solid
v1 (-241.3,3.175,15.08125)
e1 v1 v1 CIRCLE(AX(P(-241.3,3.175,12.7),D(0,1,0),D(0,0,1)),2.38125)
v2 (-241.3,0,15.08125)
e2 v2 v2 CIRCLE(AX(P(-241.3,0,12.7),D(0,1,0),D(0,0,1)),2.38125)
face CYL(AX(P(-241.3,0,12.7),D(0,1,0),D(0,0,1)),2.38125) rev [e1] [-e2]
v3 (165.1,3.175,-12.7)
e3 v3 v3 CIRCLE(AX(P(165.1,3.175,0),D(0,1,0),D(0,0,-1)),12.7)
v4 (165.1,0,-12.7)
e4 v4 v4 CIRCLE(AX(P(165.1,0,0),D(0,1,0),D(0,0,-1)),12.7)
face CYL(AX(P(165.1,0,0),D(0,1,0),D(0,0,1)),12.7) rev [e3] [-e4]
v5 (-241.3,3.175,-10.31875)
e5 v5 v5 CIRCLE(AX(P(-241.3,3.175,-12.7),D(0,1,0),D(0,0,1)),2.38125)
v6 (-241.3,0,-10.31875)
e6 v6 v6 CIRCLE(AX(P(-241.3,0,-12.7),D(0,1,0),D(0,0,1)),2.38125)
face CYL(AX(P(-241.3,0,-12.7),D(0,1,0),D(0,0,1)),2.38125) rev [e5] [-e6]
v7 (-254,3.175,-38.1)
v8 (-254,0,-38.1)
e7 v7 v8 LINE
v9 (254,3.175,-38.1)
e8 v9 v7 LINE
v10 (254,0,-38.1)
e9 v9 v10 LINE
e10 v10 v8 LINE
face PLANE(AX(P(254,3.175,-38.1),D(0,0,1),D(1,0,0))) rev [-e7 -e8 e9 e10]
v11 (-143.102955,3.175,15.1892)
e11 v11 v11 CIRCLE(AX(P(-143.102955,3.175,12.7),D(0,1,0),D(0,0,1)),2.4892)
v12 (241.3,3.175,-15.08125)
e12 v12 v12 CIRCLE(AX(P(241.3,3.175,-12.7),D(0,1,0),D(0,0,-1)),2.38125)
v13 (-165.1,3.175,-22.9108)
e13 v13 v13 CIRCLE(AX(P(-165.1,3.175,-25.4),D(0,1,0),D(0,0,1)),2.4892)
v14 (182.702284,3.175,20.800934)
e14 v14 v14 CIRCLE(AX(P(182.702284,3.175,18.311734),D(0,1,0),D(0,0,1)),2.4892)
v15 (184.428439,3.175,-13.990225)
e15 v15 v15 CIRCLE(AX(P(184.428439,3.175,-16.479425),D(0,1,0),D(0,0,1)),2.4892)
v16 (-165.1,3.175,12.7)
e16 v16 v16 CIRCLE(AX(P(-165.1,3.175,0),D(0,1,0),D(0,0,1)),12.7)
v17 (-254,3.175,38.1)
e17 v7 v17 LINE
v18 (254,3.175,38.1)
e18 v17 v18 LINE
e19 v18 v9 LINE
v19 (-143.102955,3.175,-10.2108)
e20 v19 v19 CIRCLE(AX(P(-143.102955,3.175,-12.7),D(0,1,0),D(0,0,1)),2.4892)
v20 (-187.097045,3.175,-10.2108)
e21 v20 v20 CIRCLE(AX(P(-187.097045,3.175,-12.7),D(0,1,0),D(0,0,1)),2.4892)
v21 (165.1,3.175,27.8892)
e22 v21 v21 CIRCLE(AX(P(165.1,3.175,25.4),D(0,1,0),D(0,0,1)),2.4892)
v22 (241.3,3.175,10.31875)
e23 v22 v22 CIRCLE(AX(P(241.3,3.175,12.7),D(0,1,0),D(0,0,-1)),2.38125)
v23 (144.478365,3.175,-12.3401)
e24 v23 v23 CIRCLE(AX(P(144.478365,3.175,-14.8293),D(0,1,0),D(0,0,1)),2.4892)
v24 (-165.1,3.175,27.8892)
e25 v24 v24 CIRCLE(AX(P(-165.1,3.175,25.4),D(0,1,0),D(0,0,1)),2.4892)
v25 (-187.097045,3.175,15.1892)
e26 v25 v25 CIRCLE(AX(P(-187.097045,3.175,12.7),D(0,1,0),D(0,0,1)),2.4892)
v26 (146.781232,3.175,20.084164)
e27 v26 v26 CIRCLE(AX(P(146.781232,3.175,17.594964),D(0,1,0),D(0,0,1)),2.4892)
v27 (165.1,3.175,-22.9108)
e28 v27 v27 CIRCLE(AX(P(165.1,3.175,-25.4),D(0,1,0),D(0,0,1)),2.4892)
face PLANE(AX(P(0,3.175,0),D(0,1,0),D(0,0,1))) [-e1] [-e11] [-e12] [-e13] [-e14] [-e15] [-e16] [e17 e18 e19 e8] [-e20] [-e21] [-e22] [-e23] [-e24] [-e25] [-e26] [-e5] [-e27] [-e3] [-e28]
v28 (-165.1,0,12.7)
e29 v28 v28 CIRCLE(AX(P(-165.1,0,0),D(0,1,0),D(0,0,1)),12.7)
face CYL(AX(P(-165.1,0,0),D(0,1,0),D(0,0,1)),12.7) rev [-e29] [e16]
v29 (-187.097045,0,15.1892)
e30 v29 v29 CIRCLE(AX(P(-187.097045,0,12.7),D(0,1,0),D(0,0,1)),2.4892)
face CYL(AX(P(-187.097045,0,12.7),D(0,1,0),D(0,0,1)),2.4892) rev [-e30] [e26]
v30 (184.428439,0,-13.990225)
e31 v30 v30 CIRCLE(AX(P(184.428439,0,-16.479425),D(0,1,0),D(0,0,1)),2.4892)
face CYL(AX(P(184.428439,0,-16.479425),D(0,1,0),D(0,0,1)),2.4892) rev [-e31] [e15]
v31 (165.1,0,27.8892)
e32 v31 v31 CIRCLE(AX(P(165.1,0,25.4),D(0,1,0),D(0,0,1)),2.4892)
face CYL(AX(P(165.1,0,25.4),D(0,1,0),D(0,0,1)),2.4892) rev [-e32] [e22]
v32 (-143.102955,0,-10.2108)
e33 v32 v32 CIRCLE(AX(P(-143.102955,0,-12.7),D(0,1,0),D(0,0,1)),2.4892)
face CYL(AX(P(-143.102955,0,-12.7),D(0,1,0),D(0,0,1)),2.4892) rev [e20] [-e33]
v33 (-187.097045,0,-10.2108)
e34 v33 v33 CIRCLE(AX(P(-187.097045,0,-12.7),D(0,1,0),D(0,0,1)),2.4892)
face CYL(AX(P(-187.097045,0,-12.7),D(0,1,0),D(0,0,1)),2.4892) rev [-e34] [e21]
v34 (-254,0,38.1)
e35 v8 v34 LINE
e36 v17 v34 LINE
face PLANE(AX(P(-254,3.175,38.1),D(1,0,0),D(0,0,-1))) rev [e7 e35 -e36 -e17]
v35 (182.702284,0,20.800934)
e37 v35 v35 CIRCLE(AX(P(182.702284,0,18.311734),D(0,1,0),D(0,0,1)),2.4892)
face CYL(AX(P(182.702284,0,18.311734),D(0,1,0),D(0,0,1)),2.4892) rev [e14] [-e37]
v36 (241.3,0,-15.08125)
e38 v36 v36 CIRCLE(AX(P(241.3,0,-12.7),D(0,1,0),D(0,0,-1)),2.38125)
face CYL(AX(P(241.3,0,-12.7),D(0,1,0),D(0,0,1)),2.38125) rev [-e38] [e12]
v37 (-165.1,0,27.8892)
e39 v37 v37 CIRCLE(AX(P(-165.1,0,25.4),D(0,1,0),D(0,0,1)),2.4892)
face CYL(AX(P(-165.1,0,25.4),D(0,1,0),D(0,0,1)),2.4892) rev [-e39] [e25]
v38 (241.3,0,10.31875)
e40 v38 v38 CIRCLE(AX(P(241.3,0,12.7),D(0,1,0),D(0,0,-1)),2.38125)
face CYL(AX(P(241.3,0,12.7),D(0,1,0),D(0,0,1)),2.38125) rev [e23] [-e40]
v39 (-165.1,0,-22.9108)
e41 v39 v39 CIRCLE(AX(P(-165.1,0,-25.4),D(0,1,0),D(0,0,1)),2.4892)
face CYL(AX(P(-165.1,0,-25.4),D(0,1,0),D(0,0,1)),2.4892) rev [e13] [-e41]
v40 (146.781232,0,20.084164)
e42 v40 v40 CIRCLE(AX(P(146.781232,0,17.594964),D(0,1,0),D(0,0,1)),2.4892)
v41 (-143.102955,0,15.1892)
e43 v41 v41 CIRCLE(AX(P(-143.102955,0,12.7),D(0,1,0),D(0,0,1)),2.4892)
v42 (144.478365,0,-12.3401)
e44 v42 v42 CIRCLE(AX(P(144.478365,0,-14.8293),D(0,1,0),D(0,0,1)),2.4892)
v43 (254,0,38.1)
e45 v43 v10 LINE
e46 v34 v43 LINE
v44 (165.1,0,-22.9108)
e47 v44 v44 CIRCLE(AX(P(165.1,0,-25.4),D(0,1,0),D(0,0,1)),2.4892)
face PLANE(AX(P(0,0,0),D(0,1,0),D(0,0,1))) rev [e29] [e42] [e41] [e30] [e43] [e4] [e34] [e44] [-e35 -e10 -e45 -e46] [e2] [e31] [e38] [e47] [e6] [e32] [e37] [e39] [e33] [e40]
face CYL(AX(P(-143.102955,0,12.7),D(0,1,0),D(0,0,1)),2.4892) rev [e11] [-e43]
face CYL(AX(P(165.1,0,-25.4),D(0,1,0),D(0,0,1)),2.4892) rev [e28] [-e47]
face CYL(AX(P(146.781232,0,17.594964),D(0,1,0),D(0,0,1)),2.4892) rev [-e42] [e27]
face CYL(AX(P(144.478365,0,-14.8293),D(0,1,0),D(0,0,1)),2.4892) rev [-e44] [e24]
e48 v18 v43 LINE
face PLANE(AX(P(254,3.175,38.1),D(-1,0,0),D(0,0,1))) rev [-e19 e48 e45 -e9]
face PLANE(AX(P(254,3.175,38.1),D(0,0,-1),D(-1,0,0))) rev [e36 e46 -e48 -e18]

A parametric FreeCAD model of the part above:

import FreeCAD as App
import Part
import Sketcher
from FreeCAD import Vector
Q = App.Units.Quantity

doc = App.newDocument("Part")
body = doc.addObject("PartDesign::Body", "Body")

# Sketch on XZ plane
sketch1 = body.newObject("Sketcher::SketchObject", "Sketch")
sketch1.AttachmentSupport = (doc.getObject("XZ_Plane"), [""])
sketch1.MapMode = "FlatFace"
sketch1.addGeometry([
    Part.LineSegment(Vector(-254, -38.1, 0), Vector(-254, 38.1, 0)),
    Part.LineSegment(Vector(-254, 38.1, 0), Vector(254, 38.1, 0)),
    Part.LineSegment(Vector(254, 38.1, 0), Vector(254, -38.1, 0)),
    Part.LineSegment(Vector(254, -38.1, 0), Vector(-254, -38.1, 0)),
], False)
sketch1.addConstraint([
    Sketcher.Constraint("Coincident", 0, 2, 1, 1),
    Sketcher.Constraint("Coincident", 1, 2, 2, 1),
    Sketcher.Constraint("Coincident", 2, 2, 3, 1),
    Sketcher.Constraint("Coincident", 3, 2, 0, 1),
    Sketcher.Constraint("Vertical", 0),
    Sketcher.Constraint("Horizontal", 1),
    Sketcher.Constraint("Vertical", 2),
    Sketcher.Constraint("Horizontal", 3),
    Sketcher.Constraint("Symmetric", 0, 2, 2, 2, -1, 1),
    Sketcher.Constraint("DistanceX", 1, 1, 1, 2, Q("20 in")),
    Sketcher.Constraint("DistanceY", 0, 1, 0, 2, Q("3 in")),
])
pad1 = body.newObject("PartDesign::Pad", "Pad")
pad1.Profile = sketch1
pad1.Length = Q("0.125 in")
pad1.Reversed = True

# Sketch on XZ plane
sketch2 = body.newObject("Sketcher::SketchObject", "Sketch001")
sketch2.AttachmentSupport = (doc.getObject("XZ_Plane"), [""])
sketch2.MapMode = "FlatFace"
sketch2.AttachmentOffset = App.Placement(Vector(0, 0, -0.125 * 25.4), App.Rotation())
sketch2.addGeometry([
    Part.Circle(Vector(-241.3, -12.7, 0), Vector(0, 0, 1), 2.38125),
    Part.Circle(Vector(-241.3, 12.7, 0), Vector(0, 0, 1), 2.38125),
    Part.Circle(Vector(241.3, 12.7, 0), Vector(0, 0, 1), 2.38125),
    Part.Circle(Vector(241.3, -12.7, 0), Vector(0, 0, 1), 2.38125),
], False)
sketch2.addConstraint([
    Sketcher.Constraint("Equal", 0, 1),
    Sketcher.Constraint("Equal", 1, 2),
    Sketcher.Constraint("Equal", 2, 3),
    Sketcher.Constraint("Symmetric", 0, 3, 2, 3, -1, 1),
    Sketcher.Constraint("Symmetric", 1, 3, 3, 3, -1, 1),
    Sketcher.Constraint("Symmetric", 1, 3, 2, 3, -2),
    Sketcher.Constraint("Diameter", 0, Q("0.1875 in")),
    Sketcher.Constraint("DistanceY", 0, 3, 1, 3, Q("1 in")),
    Sketcher.Constraint("DistanceX", 1, 3, 2, 3, Q("19 in")),
])
pocket1 = body.newObject("PartDesign::Pocket", "Pocket")
pocket1.Profile = sketch2
pocket1.Length = Q("0.125 in")
pocket1.Reversed = True

# Sketch on XZ plane
sketch3 = body.newObject("Sketcher::SketchObject", "Sketch002")
sketch3.AttachmentSupport = (doc.getObject("XZ_Plane"), [""])
sketch3.MapMode = "FlatFace"
sketch3.AttachmentOffset = App.Placement(Vector(0, 0, -0.125 * 25.4), App.Rotation())
sketch3.addGeometry([
    Part.Circle(Vector(-165.1, 0, 0), Vector(0, 0, 1), 12.7),
    Part.Circle(Vector(165.1, 0, 0), Vector(0, 0, 1), 12.7),
], False)
sketch3.addConstraint([
    Sketcher.Constraint("Equal", 0, 1),
    Sketcher.Constraint("Symmetric", 0, 3, 1, 3, -1, 1),
    Sketcher.Constraint("PointOnObject", 0, 3, -1),
    Sketcher.Constraint("Diameter", 0, Q("1 in")),
    Sketcher.Constraint("DistanceX", 0, 3, 1, 3, Q("13 in")),
])
pocket2 = body.newObject("PartDesign::Pocket", "Pocket001")
pocket2.Profile = sketch3
pocket2.Type = "ThroughAll"
pocket2.Midplane = True

# Sketch on XZ plane
sketch4 = body.newObject("Sketcher::SketchObject", "Sketch003")
sketch4.AttachmentSupport = (doc.getObject("XZ_Plane"), [""])
sketch4.MapMode = "FlatFace"
sketch4.AttachmentOffset = App.Placement(Vector(0, 0, -0.125 * 25.4), App.Rotation())
sketch4.addGeometry([
    Part.Circle(Vector(165.1, -25.4, 0), Vector(0, 0, 1), 2.4892),  # 0
    Part.Circle(Vector(165.1, 25.4, 0), Vector(0, 0, 1), 2.4892),  # 1
    Part.Circle(Vector(182.702284, 18.311734, 0), Vector(0, 0, 1), 2.4892),  # 2
    Part.Circle(Vector(146.781232, 17.594964, 0), Vector(0, 0, 1), 2.4892),  # 3
    Part.Circle(Vector(144.478365, -14.8293, 0), Vector(0, 0, 1), 2.4892),  # 4
    Part.Circle(Vector(184.428439, -16.479425, 0), Vector(0, 0, 1), 2.4892),  # 5
    Part.Circle(Vector(-165.1, -25.4, 0), Vector(0, 0, 1), 2.4892),  # 6
    Part.Circle(Vector(-165.1, 25.4, 0), Vector(0, 0, 1), 2.4892),  # 7
    Part.Circle(Vector(-143.102955, 12.7, 0), Vector(0, 0, 1), 2.4892),  # 8
    Part.Circle(Vector(-143.102955, -12.7, 0), Vector(0, 0, 1), 2.4892),  # 9
    Part.Circle(Vector(-187.097045, -12.7, 0), Vector(0, 0, 1), 2.4892),  # 10
    Part.Circle(Vector(-187.097045, 12.7, 0), Vector(0, 0, 1), 2.4892),  # 11
], False)
sketch4.addConstraint([
    Sketcher.Constraint("Equal", 0, 1),
    Sketcher.Constraint("Equal", 1, 2),
    Sketcher.Constraint("Equal", 2, 3),
    Sketcher.Constraint("Equal", 3, 4),
    Sketcher.Constraint("Equal", 4, 5),
    Sketcher.Constraint("Equal", 5, 6),
    Sketcher.Constraint("Equal", 6, 7),
    Sketcher.Constraint("Equal", 7, 8),
    Sketcher.Constraint("Equal", 8, 9),
    Sketcher.Constraint("Equal", 9, 10),
    Sketcher.Constraint("Equal", 10, 11),
    Sketcher.Constraint("Symmetric", 1, 3, 6, 3, -1, 1),
    Sketcher.Constraint("Symmetric", 0, 3, 7, 3, -1, 1),
    Sketcher.Constraint("Symmetric", 0, 3, 6, 3, -2),
    Sketcher.Constraint("Symmetric", 8, 3, 9, 3, -1),
    Sketcher.Constraint("Symmetric", 10, 3, 11, 3, -1),
    Sketcher.Constraint("Horizontal", 9, 3, 10, 3),
    Sketcher.Constraint("Diameter", 0, Q("0.196 in")),
    Sketcher.Constraint("DistanceY", 0, 3, -1, 1, Q("1 in")),
    Sketcher.Constraint("DistanceX", 6, 3, 0, 3, Q("13 in")),
    Sketcher.Constraint("DistanceY", 9, 3, 8, 3, Q("1 in")),
    Sketcher.Constraint("DistanceY", 4, 3, -1, 1, 14.8293),
    Sketcher.Constraint("DistanceX", -1, 1, 5, 3, 184.428439),
    Sketcher.Constraint("DistanceY", 3, 3, 2, 3, 0.71677),
    Sketcher.Constraint("DistanceX", 4, 3, 2, 3, 38.22392),
    Sketcher.Constraint("DistanceY", 5, 3, 2, 3, 34.791158),
    Sketcher.Constraint("DistanceX", 8, 3, 4, 3, 287.581319),
    Sketcher.Constraint("DistanceX", 10, 3, 9, 3, 43.994091),
    Sketcher.Constraint("DistanceX", -1, 1, 2, 3, 182.702284),
    Sketcher.Constraint("DistanceY", -1, 1, 2, 3, 18.311734),
    Sketcher.Constraint("DistanceX", -1, 1, 3, 3, 146.781232),
])
pocket3 = body.newObject("PartDesign::Pocket", "Pocket002")
pocket3.Profile = sketch4
pocket3.Type = "ThroughAll"
pocket3.Midplane = True

doc.recompute()
